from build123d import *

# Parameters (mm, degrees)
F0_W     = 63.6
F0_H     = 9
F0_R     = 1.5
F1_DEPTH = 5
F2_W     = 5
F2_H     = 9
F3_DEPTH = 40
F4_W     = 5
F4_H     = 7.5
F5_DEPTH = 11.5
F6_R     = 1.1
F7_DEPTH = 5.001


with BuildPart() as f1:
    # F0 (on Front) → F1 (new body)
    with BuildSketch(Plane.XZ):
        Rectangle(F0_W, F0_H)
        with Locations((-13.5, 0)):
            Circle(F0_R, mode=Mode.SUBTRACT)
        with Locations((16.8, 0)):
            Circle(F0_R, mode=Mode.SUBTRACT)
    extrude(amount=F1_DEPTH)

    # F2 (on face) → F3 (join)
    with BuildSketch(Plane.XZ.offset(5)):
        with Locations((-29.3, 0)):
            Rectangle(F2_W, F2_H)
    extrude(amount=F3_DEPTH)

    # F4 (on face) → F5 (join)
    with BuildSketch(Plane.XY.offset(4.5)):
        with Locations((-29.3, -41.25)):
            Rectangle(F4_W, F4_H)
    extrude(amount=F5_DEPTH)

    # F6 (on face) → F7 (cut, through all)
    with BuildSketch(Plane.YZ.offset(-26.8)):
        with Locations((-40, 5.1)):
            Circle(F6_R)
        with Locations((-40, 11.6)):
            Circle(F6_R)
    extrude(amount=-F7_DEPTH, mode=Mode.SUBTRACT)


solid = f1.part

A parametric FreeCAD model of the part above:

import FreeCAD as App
import Part
import Sketcher

V = App.Vector
Q = App.Units.Quantity

doc = App.newDocument("Part")
body = doc.addObject("PartDesign::Body", "Body")

sketch1 = doc.addObject("Sketcher::SketchObject", "Sketch")
body.addObject(sketch1)
sketch1.AttachmentSupport = (doc.XZ_Plane, [""])
sketch1.MapMode = "FlatFace"
sketch1.addGeometry([
    Part.LineSegment(V(-31.8, 4.5, 0), V(-31.8, -4.5, 0)),
    Part.LineSegment(V(-31.8, -4.5, 0), V(31.8, -4.5, 0)),
    Part.LineSegment(V(31.8, -4.5, 0), V(31.8, 4.5, 0)),
    Part.LineSegment(V(31.8, 4.5, 0), V(-31.8, 4.5, 0)),
    Part.Circle(V(-13.5, 0, 0), V(0, 0, 1), 1.5),
    Part.Circle(V(16.8, 0, 0), V(0, 0, 1), 1.5),
], False)
sketch1.addConstraint([
    Sketcher.Constraint("Coincident", 0, 2, 1, 1),
    Sketcher.Constraint("Coincident", 1, 2, 2, 1),
    Sketcher.Constraint("Coincident", 2, 2, 3, 1),
    Sketcher.Constraint("Coincident", 3, 2, 0, 1),
    Sketcher.Constraint("Vertical", 0),
    Sketcher.Constraint("Horizontal", 1),
    Sketcher.Constraint("Vertical", 2),
    Sketcher.Constraint("Horizontal", 3),
    Sketcher.Constraint("Equal", 4, 5),
    Sketcher.Constraint("Symmetric", 0, 2, 2, 2, -1, 1),
    Sketcher.Constraint("PointOnObject", 4, 3, -1),
    Sketcher.Constraint("PointOnObject", 5, 3, -1),
    Sketcher.Constraint("Diameter", 4, Q("3 mm")),
    Sketcher.Constraint("DistanceY", 0, 2, 0, 1, Q("9 mm")),
    Sketcher.Constraint("DistanceX", 1, 1, 1, 2, Q("63.6 mm")),
    Sketcher.Constraint("DistanceX", 5, 3, 1, 2, Q("15 mm")),
    Sketcher.Constraint("DistanceX", 4, 3, -1, 1, Q("13.5 mm")),
])
pad1 = doc.addObject("PartDesign::Pad", "Pad")
body.addObject(pad1)
pad1.Profile = sketch1
pad1.Length = 5

sketch2 = doc.addObject("Sketcher::SketchObject", "Sketch001")
body.addObject(sketch2)
sketch2.AttachmentSupport = (doc.XZ_Plane, [""])
sketch2.MapMode = "FlatFace"
sketch2.AttachmentOffset = App.Placement(V(0, 0, 5), App.Rotation())
sketch2.addGeometry([
    Part.LineSegment(V(-32, 4, 0), V(-32, -4, 0)),
    Part.LineSegment(V(-32, -4, 0), V(-27, -4, 0)),
    Part.LineSegment(V(-27, -4, 0), V(-27, 4, 0)),
    Part.LineSegment(V(-27, 4, 0), V(-32, 4, 0)),
], False)
sketch2.addConstraint([
    Sketcher.Constraint("Coincident", 0, 2, 1, 1),
    Sketcher.Constraint("Coincident", 1, 2, 2, 1),
    Sketcher.Constraint("Coincident", 2, 2, 3, 1),
    Sketcher.Constraint("Coincident", 3, 2, 0, 1),
    Sketcher.Constraint("Vertical", 0),
    Sketcher.Constraint("Horizontal", 1),
    Sketcher.Constraint("Vertical", 2),
    Sketcher.Constraint("Horizontal", 3),
    Sketcher.Constraint("DistanceX", 1, 1, 1, 2, Q("5 mm")),
    Sketcher.Constraint("DistanceY", 0, 2, 0, 1, Q("9 mm")),
    Sketcher.Constraint("DistanceX", 0, 2, -1, 1, Q("31.8 mm")),
    Sketcher.Constraint("DistanceY", 0, 2, -1, 1, Q("4.5 mm")),
])
pad2 = doc.addObject("PartDesign::Pad", "Pad001")
body.addObject(pad2)
pad2.Profile = sketch2
pad2.Length = 40

sketch3 = doc.addObject("Sketcher::SketchObject", "Sketch002")
body.addObject(sketch3)
sketch3.AttachmentSupport = (doc.XY_Plane, [""])
sketch3.MapMode = "FlatFace"
sketch3.AttachmentOffset = App.Placement(V(0, 0, 4.5), App.Rotation())
sketch3.addGeometry([
    Part.LineSegment(V(-32, -38, 0), V(-32, -45, 0)),
    Part.LineSegment(V(-32, -45, 0), V(-27, -45, 0)),
    Part.LineSegment(V(-27, -45, 0), V(-27, -38, 0)),
    Part.LineSegment(V(-27, -38, 0), V(-32, -38, 0)),
], False)
sketch3.addConstraint([
    Sketcher.Constraint("Coincident", 0, 2, 1, 1),
    Sketcher.Constraint("Coincident", 1, 2, 2, 1),
    Sketcher.Constraint("Coincident", 2, 2, 3, 1),
    Sketcher.Constraint("Coincident", 3, 2, 0, 1),
    Sketcher.Constraint("Vertical", 0),
    Sketcher.Constraint("Horizontal", 1),
    Sketcher.Constraint("Vertical", 2),
    Sketcher.Constraint("Horizontal", 3),
    Sketcher.Constraint("DistanceX", 1, 1, 1, 2, Q("5 mm")),
    Sketcher.Constraint("DistanceY", 0, 2, 0, 1, Q("7.5 mm")),
    Sketcher.Constraint("DistanceY", 0, 2, -1, 1, Q("45 mm")),
    Sketcher.Constraint("DistanceX", 0, 2, -1, 1, Q("31.8 mm")),
])
pad3 = doc.addObject("PartDesign::Pad", "Pad002")
body.addObject(pad3)
pad3.Profile = sketch3
pad3.Length = 11.5

sketch4 = doc.addObject("Sketcher::SketchObject", "Sketch003")
body.addObject(sketch4)
sketch4.AttachmentSupport = (doc.YZ_Plane, [""])
sketch4.MapMode = "FlatFace"
sketch4.AttachmentOffset = App.Placement(V(0, 0, -26.8), App.Rotation())
sketch4.addGeometry([
    Part.Circle(V(-40, 5.1, 0), V(0, 0, 1), 1.1),
    Part.Circle(V(-40, 11.6, 0), V(0, 0, 1), 1.1),
], False)
sketch4.addConstraint([
    Sketcher.Constraint("Equal", 0, 1),
    Sketcher.Constraint("Vertical", 0, 3, 1, 3),
    Sketcher.Constraint("Diameter", 0, Q("2.2 mm")),
    Sketcher.Constraint("DistanceX", 0, 3, -1, 1, Q("40 mm")),
    Sketcher.Constraint("DistanceY", -1, 1, 0, 3, Q("5.1 mm")),
    Sketcher.Constraint("DistanceY", -1, 1, 1, 3, Q("11.6 mm")),
])
pocket1 = doc.addObject("PartDesign::Pocket", "Pocket")
body.addObject(pocket1)
pocket1.Profile = sketch4
pocket1.Type = "ThroughAll"

doc.recompute()
